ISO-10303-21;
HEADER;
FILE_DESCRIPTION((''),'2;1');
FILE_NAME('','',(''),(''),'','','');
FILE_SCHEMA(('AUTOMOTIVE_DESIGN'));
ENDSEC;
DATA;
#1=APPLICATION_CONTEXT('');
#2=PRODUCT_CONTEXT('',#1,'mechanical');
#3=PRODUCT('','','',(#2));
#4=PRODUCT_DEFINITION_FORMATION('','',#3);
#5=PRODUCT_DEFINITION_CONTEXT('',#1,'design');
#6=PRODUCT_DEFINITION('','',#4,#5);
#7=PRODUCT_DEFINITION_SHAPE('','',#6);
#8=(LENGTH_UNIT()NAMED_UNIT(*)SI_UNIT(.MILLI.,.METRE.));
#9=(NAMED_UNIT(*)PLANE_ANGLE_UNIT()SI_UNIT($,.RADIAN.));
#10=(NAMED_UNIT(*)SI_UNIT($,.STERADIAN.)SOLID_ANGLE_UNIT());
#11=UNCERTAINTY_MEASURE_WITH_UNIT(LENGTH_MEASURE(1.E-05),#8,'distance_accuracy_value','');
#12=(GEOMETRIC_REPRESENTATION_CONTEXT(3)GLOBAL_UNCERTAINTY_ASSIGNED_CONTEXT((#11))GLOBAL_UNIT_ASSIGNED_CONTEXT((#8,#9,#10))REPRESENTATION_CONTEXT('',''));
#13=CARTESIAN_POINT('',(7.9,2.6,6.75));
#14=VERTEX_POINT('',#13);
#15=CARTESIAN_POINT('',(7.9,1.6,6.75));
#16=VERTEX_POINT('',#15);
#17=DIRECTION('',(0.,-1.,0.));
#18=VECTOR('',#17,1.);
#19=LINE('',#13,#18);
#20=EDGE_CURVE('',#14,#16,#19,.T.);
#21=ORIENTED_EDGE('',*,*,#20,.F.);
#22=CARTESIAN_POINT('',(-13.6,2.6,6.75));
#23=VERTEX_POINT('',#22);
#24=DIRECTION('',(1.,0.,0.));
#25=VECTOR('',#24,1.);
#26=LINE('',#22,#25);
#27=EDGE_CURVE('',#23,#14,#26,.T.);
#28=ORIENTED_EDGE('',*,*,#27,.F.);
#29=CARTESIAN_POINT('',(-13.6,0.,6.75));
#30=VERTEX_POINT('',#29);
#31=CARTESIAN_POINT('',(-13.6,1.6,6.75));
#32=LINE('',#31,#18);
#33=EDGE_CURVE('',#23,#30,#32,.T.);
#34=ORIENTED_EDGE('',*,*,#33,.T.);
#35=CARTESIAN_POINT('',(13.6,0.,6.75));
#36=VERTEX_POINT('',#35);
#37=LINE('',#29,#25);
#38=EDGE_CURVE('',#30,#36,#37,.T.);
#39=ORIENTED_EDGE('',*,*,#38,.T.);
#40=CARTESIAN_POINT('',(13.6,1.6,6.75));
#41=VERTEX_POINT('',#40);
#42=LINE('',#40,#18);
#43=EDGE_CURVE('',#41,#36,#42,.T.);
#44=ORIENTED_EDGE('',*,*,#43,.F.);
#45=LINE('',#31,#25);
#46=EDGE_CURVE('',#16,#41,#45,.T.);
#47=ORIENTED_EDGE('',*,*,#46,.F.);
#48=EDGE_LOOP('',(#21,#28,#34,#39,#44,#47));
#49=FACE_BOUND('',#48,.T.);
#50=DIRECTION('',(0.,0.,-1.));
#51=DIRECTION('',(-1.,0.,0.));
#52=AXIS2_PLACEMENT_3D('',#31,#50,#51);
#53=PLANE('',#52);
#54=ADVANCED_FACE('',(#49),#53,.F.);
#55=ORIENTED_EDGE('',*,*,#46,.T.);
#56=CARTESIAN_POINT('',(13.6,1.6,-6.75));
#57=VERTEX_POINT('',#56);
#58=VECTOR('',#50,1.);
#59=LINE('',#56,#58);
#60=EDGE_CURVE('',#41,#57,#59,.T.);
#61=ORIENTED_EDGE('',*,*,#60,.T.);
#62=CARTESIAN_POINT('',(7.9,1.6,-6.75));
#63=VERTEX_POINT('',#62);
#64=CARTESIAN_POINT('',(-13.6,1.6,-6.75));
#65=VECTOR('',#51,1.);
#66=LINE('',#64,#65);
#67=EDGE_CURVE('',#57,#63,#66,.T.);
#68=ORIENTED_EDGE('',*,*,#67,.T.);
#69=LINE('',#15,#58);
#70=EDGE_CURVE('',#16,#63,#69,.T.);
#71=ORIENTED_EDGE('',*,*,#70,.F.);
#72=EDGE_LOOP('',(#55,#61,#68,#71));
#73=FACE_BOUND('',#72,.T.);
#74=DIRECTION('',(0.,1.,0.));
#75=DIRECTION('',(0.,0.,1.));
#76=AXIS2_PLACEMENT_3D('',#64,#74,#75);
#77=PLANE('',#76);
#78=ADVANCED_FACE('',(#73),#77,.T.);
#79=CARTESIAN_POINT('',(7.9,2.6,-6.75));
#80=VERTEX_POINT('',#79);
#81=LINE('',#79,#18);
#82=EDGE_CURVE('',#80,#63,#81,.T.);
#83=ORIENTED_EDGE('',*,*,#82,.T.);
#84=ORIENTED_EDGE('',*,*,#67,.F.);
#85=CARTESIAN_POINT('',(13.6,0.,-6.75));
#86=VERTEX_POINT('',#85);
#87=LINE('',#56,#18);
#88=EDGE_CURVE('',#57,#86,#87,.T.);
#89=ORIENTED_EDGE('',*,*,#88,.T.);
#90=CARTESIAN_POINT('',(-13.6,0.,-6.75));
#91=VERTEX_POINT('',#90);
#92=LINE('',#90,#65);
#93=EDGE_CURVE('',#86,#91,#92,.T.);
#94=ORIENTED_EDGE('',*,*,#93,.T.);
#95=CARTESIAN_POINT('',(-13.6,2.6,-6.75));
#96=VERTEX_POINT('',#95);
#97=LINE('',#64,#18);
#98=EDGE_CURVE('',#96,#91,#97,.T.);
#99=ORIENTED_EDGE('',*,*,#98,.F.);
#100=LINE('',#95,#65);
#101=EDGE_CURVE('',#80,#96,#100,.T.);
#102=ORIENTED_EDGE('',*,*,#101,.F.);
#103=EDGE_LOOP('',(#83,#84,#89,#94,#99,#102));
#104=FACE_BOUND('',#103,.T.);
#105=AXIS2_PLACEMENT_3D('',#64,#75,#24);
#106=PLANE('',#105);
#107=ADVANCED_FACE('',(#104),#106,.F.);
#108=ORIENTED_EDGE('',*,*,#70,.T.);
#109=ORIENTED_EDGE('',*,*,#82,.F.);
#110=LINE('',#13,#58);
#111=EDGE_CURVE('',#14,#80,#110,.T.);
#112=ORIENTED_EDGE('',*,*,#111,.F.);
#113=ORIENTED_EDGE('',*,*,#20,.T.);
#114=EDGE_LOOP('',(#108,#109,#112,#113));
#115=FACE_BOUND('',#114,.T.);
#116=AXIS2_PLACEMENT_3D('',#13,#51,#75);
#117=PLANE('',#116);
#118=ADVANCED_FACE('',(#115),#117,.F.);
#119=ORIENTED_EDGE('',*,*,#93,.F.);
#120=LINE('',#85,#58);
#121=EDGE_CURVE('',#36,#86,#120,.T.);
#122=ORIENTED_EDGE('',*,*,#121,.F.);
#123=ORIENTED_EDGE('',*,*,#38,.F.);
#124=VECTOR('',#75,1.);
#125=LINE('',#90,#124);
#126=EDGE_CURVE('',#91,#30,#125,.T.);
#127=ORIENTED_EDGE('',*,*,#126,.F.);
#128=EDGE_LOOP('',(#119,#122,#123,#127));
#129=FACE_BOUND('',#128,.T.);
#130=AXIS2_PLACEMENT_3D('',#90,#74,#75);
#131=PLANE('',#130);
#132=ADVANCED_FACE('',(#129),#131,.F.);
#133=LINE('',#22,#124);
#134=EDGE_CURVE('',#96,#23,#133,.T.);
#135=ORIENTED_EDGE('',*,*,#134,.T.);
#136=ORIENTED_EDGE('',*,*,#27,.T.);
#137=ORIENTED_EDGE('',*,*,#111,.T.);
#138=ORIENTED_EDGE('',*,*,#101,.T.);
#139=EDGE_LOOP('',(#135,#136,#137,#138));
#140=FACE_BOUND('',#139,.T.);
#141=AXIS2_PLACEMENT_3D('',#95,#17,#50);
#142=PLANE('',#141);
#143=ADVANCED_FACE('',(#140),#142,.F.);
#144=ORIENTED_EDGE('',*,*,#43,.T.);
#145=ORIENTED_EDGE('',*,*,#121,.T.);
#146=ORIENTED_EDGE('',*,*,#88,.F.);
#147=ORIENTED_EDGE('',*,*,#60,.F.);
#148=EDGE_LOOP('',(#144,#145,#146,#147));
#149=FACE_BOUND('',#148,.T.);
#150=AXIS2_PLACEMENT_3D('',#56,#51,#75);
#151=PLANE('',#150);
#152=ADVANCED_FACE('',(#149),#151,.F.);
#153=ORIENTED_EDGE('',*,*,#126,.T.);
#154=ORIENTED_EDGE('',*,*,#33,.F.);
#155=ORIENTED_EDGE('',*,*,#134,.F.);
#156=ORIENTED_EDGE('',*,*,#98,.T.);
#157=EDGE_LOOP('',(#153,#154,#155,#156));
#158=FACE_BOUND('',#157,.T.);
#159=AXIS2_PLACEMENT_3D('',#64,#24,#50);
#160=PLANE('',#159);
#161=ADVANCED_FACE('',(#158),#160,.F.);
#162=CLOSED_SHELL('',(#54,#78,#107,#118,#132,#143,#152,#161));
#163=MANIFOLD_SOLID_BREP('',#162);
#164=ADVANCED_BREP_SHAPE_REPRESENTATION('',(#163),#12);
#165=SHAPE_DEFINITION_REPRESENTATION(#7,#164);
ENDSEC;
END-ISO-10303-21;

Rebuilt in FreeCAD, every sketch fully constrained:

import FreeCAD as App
import Part
import Sketcher
from FreeCAD import Vector

doc = App.newDocument("Part")
body = doc.addObject("PartDesign::Body", "Body")

sketch1 = body.newObject("Sketcher::SketchObject", "Sketch")
sketch1.AttachmentSupport = (doc.getObject("XZ_Plane"), [""])
sketch1.MapMode = "FlatFace"
sketch1.addGeometry(Part.LineSegment(Vector(-13.6, -6.75, 0), Vector(-13.6, 6.75, 0)), False)
sketch1.addGeometry(Part.LineSegment(Vector(-13.6, 6.75, 0), Vector(13.6, 6.75, 0)), False)
sketch1.addGeometry(Part.LineSegment(Vector(13.6, 6.75, 0), Vector(13.6, -6.75, 0)), False)
sketch1.addGeometry(Part.LineSegment(Vector(13.6, -6.75, 0), Vector(-13.6, -6.75, 0)), False)
sketch1.addConstraint(Sketcher.Constraint("Coincident", 0, 2, 1, 1))
sketch1.addConstraint(Sketcher.Constraint("Coincident", 1, 2, 2, 1))
sketch1.addConstraint(Sketcher.Constraint("Coincident", 2, 2, 3, 1))
sketch1.addConstraint(Sketcher.Constraint("Coincident", 3, 2, 0, 1))
sketch1.addConstraint(Sketcher.Constraint("Vertical", 0))
sketch1.addConstraint(Sketcher.Constraint("Horizontal", 1))
sketch1.addConstraint(Sketcher.Constraint("Vertical", 2))
sketch1.addConstraint(Sketcher.Constraint("Horizontal", 3))
sketch1.addConstraint(Sketcher.Constraint("Symmetric", 0, 2, 2, 2, -1, 1))
sketch1.addConstraint(Sketcher.Constraint("DistanceX", 1, 1, 1, 2, 27.2))
sketch1.addConstraint(Sketcher.Constraint("DistanceY", 0, 1, 0, 2, 13.5))
pad1 = body.newObject("PartDesign::Pad", "Pad")
pad1.Profile = sketch1
pad1.Length = 1.6
pad1.Reversed = True

sketch2 = body.newObject("Sketcher::SketchObject", "Sketch001")
sketch2.AttachmentSupport = (doc.getObject("XZ_Plane"), [""])
sketch2.MapMode = "FlatFace"
sketch2.AttachmentOffset = App.Placement(Vector(0, 0, -1.6), App.Rotation())
sketch2.addGeometry(Part.LineSegment(Vector(7.9, 6.75, 0), Vector(7.9, -6.75, 0)), False)
sketch2.addGeometry(Part.LineSegment(Vector(7.9, -6.75, 0), Vector(-13.6, -6.75, 0)), False)
sketch2.addGeometry(Part.LineSegment(Vector(-13.6, -6.75, 0), Vector(-13.6, 6.75, 0)), False)
sketch2.addGeometry(Part.LineSegment(Vector(-13.6, 6.75, 0), Vector(7.9, 6.75, 0)), False)
sketch2.addConstraint(Sketcher.Constraint("Coincident", 0, 2, 1, 1))
sketch2.addConstraint(Sketcher.Constraint("Coincident", 1, 2, 2, 1))
sketch2.addConstraint(Sketcher.Constraint("Coincident", 2, 2, 3, 1))
sketch2.addConstraint(Sketcher.Constraint("Coincident", 3, 2, 0, 1))
sketch2.addConstraint(Sketcher.Constraint("Vertical", 0))
sketch2.addConstraint(Sketcher.Constraint("Horizontal", 1))
sketch2.addConstraint(Sketcher.Constraint("Vertical", 2))
sketch2.addConstraint(Sketcher.Constraint("Horizontal", 3))
sketch2.addConstraint(Sketcher.Constraint("DistanceX", 1, 2, 1, 1, 21.5))
sketch2.addConstraint(Sketcher.Constraint("DistanceY", 0, 2, 0, 1, 13.5))
sketch2.addConstraint(Sketcher.Constraint("DistanceX", -1, 1, 0, 2, 7.9))
sketch2.addConstraint(Sketcher.Constraint("DistanceY", 0, 2, -1, 1, 6.75))
pad2 = body.newObject("PartDesign::Pad", "Pad001")
pad2.Profile = sketch2
pad2.Length = 1
pad2.Reversed = True

doc.recompute()
